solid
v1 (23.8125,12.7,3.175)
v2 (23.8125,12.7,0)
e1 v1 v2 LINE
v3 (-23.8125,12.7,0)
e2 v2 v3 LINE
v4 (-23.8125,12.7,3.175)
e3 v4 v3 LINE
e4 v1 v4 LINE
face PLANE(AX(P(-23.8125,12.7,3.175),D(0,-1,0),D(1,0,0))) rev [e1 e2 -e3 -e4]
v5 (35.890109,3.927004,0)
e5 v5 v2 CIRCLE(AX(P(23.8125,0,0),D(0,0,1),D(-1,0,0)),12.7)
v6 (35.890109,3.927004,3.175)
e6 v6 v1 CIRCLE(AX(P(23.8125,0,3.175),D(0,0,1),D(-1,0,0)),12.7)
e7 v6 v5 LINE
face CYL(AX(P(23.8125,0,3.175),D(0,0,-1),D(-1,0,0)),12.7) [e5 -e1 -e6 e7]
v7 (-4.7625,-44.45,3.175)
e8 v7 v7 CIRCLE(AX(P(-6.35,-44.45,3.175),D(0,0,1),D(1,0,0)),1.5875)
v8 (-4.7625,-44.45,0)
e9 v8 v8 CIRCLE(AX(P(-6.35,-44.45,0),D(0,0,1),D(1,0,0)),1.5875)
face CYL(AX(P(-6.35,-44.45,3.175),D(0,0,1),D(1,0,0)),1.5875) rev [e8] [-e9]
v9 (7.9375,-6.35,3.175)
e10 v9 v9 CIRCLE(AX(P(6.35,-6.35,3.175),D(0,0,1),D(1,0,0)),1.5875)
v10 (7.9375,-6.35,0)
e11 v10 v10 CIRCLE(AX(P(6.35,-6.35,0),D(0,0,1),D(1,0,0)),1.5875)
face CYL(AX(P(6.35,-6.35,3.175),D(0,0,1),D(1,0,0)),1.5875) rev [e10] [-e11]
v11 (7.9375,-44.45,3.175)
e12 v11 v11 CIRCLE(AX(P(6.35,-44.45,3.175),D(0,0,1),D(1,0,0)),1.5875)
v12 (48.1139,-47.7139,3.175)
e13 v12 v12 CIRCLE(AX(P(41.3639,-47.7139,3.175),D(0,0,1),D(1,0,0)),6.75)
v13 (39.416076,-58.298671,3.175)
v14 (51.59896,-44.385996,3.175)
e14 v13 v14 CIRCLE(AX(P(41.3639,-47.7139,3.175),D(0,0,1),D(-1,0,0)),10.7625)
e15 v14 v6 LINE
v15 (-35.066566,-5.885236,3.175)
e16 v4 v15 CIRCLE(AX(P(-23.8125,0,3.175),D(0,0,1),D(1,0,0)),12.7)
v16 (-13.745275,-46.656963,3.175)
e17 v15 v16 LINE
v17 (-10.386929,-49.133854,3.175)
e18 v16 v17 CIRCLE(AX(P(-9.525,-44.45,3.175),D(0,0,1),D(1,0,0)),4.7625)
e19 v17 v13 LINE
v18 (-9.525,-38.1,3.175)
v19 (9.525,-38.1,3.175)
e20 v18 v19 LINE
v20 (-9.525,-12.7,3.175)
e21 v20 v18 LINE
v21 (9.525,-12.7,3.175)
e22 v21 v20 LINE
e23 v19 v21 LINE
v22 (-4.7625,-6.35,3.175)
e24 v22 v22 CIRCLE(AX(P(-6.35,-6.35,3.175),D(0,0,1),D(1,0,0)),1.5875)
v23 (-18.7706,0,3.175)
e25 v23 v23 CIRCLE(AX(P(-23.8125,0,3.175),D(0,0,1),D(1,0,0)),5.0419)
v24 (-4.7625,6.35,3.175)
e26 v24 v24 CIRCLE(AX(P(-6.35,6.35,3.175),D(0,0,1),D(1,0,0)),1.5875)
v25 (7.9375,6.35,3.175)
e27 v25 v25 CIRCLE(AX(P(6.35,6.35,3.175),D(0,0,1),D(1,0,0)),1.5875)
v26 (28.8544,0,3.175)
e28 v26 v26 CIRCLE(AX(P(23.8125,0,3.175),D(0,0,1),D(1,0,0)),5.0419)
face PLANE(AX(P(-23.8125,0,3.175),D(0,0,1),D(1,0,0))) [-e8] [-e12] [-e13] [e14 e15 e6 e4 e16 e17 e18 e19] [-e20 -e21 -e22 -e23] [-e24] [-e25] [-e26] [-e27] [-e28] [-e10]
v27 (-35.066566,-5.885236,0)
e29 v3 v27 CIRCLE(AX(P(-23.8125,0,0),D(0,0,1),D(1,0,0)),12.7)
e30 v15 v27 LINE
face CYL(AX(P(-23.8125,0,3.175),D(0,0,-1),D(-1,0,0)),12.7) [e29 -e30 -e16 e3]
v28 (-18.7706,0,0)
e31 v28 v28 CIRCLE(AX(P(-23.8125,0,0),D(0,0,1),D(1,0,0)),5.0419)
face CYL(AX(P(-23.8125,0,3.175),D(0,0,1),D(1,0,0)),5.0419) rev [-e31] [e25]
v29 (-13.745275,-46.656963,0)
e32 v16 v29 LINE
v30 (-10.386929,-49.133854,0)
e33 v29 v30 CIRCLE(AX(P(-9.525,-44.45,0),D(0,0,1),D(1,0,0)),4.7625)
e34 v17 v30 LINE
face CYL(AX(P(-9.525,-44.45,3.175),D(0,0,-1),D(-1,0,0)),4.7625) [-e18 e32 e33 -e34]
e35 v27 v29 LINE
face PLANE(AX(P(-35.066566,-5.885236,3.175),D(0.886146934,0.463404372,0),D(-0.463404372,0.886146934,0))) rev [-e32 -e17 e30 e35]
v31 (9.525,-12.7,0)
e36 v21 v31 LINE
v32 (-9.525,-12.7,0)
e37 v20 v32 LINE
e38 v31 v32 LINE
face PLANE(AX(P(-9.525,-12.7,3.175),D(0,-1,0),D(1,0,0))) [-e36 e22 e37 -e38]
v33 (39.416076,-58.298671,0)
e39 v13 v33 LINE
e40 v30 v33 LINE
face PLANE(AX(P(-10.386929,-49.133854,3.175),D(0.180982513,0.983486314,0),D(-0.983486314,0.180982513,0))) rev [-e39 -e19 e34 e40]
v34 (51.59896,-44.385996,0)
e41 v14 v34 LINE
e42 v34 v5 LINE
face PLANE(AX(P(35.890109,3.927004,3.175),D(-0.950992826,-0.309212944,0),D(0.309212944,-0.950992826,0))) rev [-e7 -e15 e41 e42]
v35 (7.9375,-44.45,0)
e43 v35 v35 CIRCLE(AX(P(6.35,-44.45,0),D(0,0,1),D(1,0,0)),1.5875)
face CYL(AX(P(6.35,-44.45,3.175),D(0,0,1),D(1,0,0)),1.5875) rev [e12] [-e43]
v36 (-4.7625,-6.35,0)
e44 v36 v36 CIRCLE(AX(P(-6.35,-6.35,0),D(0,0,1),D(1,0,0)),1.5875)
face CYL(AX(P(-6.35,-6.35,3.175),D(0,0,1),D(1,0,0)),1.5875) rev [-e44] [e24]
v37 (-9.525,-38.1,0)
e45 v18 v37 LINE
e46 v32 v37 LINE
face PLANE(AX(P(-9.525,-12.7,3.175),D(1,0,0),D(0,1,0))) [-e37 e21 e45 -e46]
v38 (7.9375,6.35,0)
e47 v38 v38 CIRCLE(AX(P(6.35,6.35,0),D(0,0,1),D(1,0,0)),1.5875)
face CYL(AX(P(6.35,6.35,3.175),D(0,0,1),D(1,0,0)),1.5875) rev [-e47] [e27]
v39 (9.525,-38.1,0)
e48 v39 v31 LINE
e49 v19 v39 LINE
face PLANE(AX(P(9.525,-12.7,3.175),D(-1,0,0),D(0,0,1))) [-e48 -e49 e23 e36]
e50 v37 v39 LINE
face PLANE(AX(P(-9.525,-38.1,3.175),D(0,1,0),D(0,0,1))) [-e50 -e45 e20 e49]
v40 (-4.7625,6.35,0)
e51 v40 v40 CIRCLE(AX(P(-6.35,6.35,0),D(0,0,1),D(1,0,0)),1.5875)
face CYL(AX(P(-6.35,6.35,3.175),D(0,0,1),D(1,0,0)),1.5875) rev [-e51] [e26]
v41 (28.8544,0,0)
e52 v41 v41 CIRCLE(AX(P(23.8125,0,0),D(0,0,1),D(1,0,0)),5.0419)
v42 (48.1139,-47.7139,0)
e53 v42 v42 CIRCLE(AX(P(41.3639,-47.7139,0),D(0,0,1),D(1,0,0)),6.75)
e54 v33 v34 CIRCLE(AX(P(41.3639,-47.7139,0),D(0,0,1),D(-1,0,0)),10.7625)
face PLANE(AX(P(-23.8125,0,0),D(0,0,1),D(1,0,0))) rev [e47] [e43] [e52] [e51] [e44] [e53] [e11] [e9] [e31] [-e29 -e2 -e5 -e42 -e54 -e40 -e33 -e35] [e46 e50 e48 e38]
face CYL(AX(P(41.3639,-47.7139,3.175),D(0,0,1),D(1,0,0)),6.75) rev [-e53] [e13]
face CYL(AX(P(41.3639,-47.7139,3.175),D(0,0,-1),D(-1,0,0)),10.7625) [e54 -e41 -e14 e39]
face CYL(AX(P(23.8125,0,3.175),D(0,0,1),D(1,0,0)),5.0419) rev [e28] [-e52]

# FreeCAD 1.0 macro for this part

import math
import FreeCAD as App
import Part
import Sketcher
Q = App.Units.Quantity

doc = App.newDocument("Part")
params = doc.addObject("Spreadsheet::Sheet", "Params")
for row, (alias, value) in enumerate([
    ("sketch1_radius", "0.5 in"),
    ("sketch1_height", "1 in"),
    ("sketch1_radius2", "0.1875 in"),
    ("sketch1_width", "0.75 in"),
    ("sketch1_width2", "1.875 in"),
    ("pad1_length", "0.125 in"),
    ("sketch2_diameter", "0.397 in"),
    ("hole_diameter", "0.397 in"),
    ("hole2_diameter", "13.5 mm"),
    ("sketch4_diameter", "0.125 in"),
    ("hole3_diameter", "0.125 in"),
], start=1):
    params.set(f"A{row}", alias)
    params.set(f"B{row}", "=" + value)
    params.setAlias(f"B{row}", alias)

body = doc.addObject("PartDesign::Body", "Body")

# Sketch on XY plane
sketch1 = body.newObject("Sketcher::SketchObject", "Sketch")
sketch1.AttachmentSupport = (doc.getObject("XY_Plane"), [""])
sketch1.MapMode = "FlatFace"
sketch1.addGeometry([
    Part.LineSegment(App.Vector(23.8125, 12.7, 0), App.Vector(-23.8125, 12.7, 0)),  # 0
    Part.ArcOfCircle(Part.Circle(App.Vector(-23.8125, 0, 0), App.Vector(0, 0, 1), 12.7), math.radians(90), math.radians(207.607005)),  # 1
    Part.LineSegment(App.Vector(-35.066566, -5.885236, 0), App.Vector(-13.745275, -46.656963, 0)),  # 2
    Part.ArcOfCircle(Part.Circle(App.Vector(-9.525, -44.45, 0), App.Vector(0, 0, 1), 4.7625), math.radians(-152.392996), math.radians(-100.426994)),  # 3
    Part.LineSegment(App.Vector(-10.386929, -49.133854, 0), App.Vector(39.416076, -58.298671, 0)),  # 4
    Part.ArcOfCircle(Part.Circle(App.Vector(41.3639, -47.7139, 0), App.Vector(0, 0, 1), 10.7625), math.radians(-100.426994), math.radians(18.011805)),  # 5
    Part.LineSegment(App.Vector(51.59896, -44.385996, 0), App.Vector(35.890109, 3.927004, 0)),  # 6
    Part.ArcOfCircle(Part.Circle(App.Vector(23.8125, 0, 0), App.Vector(0, 0, 1), 12.7), math.radians(18.011805), math.radians(90)),  # 7
    Part.LineSegment(App.Vector(-9.525, -38.1, 0), App.Vector(-9.525, -12.7, 0)),  # 8
    Part.LineSegment(App.Vector(-9.525, -12.7, 0), App.Vector(9.525, -12.7, 0)),  # 9
    Part.LineSegment(App.Vector(9.525, -12.7, 0), App.Vector(9.525, -38.1, 0)),  # 10
    Part.LineSegment(App.Vector(9.525, -38.1, 0), App.Vector(-9.525, -38.1, 0)),  # 11
], False)
sketch1.addConstraint([
    Sketcher.Constraint("Tangent", 0, 2, 1, 1),
    Sketcher.Constraint("Tangent", 1, 2, 2, 1),
    Sketcher.Constraint("Tangent", 2, 2, 3, 1),
    Sketcher.Constraint("Tangent", 3, 2, 4, 1),
    Sketcher.Constraint("Tangent", 4, 2, 5, 1),
    Sketcher.Constraint("Tangent", 5, 2, 6, 1),
    Sketcher.Constraint("Tangent", 6, 2, 7, 1),
    Sketcher.Constraint("Tangent", 7, 2, 0, 1),
    Sketcher.Constraint("Coincident", 8, 2, 9, 1),
    Sketcher.Constraint("Coincident", 9, 2, 10, 1),
    Sketcher.Constraint("Coincident", 10, 2, 11, 1),
    Sketcher.Constraint("Coincident", 11, 2, 8, 1),
    Sketcher.Constraint("Horizontal", 0),
    Sketcher.Constraint("Vertical", 8),
    Sketcher.Constraint("Horizontal", 9),
    Sketcher.Constraint("Vertical", 10),
    Sketcher.Constraint("Horizontal", 11),
    Sketcher.Constraint("Equal", 1, 7),
    Sketcher.Constraint("Symmetric", 1, 3, 7, 3, -1, 1),
    Sketcher.Constraint("Vertical", 3, 3, 8, 2),
    Sketcher.Constraint("Radius", 1, Q("0.5 in")),
    Sketcher.Constraint("DistanceY", 8, 1, 8, 2, Q("1 in")),
    Sketcher.Constraint("Radius", 3, Q("0.1875 in")),
    Sketcher.Constraint("DistanceY", 8, 2, 0, 2, Q("1 in")),
    Sketcher.Constraint("DistanceX", 9, 1, 9, 2, Q("0.75 in")),
    Sketcher.Constraint("DistanceX", 0, 2, 0, 1, Q("1.875 in")),
    Sketcher.Constraint("DistanceY", 3, 3, -1, 1, Q("1.75 in")),
    Sketcher.Constraint("Radius", 5, Q("10.7625 mm")),
    Sketcher.Constraint("DistanceX", 3, 3, -1, 1, Q("0.375 in")),
    Sketcher.Constraint("DistanceX", 1, 3, 5, 3, Q("2.566 in")),
    Sketcher.Constraint("DistanceY", 5, 3, -1, 1, Q("1.8785 in")),
])
sketch1.setExpression("Constraints[20]", "Params.sketch1_radius")
sketch1.setExpression("Constraints[21]", "Params.sketch1_height")
sketch1.setExpression("Constraints[22]", "Params.sketch1_radius2")
sketch1.setExpression("Constraints[24]", "Params.sketch1_width")
sketch1.setExpression("Constraints[25]", "Params.sketch1_width2")
pad1 = body.newObject("PartDesign::Pad", "Pad")
pad1.Profile = sketch1
pad1.setExpression("Length", "Params.pad1_length")

# Sketch on XY plane
sketch2 = body.newObject("Sketcher::SketchObject", "Sketch001")
sketch2.AttachmentSupport = (doc.getObject("XY_Plane"), [""])
sketch2.MapMode = "FlatFace"
sketch2.AttachmentOffset = App.Placement(App.Vector(0, 0, 0.125 * 25.4), App.Rotation())
sketch2.addGeometry([
    Part.Circle(App.Vector(-23.8125, 0, 0), App.Vector(0, 0, 1), 5.0419),
    Part.Circle(App.Vector(23.8125, 0, 0), App.Vector(0, 0, 1), 5.0419),
], False)
sketch2.addConstraint([
    Sketcher.Constraint("Equal", 0, 1),
    Sketcher.Constraint("Symmetric", 0, 3, 1, 3, -1, 1),
    Sketcher.Constraint("PointOnObject", 0, 3, -1),
    Sketcher.Constraint("Diameter", 0, Q("0.397 in")),
    Sketcher.Constraint("DistanceX", 0, 3, -1, 1, Q("0.9375 in")),
])
sketch2.setExpression("Constraints[3]", "Params.sketch2_diameter")
doc.recompute()
hole = body.newObject("PartDesign::Hole", "Hole")
hole.Profile = sketch2
hole.ThreadType = "None"
hole.setExpression("Diameter", "Params.hole_diameter")
hole.DepthType = "ThroughAll"

# Sketch on XY plane
sketch3 = body.newObject("Sketcher::SketchObject", "Sketch002")
sketch3.AttachmentSupport = (doc.getObject("XY_Plane"), [""])
sketch3.MapMode = "FlatFace"
sketch3.AttachmentOffset = App.Placement(App.Vector(0, 0, 0.125 * 25.4), App.Rotation())
sketch3.addGeometry(Part.Circle(App.Vector(41.3639, -47.7139, 0), App.Vector(0, 0, 1), 6.75), False)
sketch3.addConstraint([
    Sketcher.Constraint("Diameter", 0, Q("13.5 mm")),
    Sketcher.Constraint("DistanceX", -1, 1, 0, 3, Q("1.6285 in")),
    Sketcher.Constraint("DistanceY", 0, 3, -1, 1, Q("1.8785 in")),
])
doc.recompute()
hole2 = body.newObject("PartDesign::Hole", "Hole001")
hole2.Profile = sketch3
hole2.ThreadType = "None"
hole2.setExpression("Diameter", "Params.hole2_diameter")
hole2.DepthType = "ThroughAll"

# Sketch on XY plane
sketch4 = body.newObject("Sketcher::SketchObject", "Sketch003")
sketch4.AttachmentSupport = (doc.getObject("XY_Plane"), [""])
sketch4.MapMode = "FlatFace"
sketch4.AttachmentOffset = App.Placement(App.Vector(0, 0, 0.125 * 25.4), App.Rotation())
sketch4.addGeometry([
    Part.Circle(App.Vector(6.35, -6.35, 0), App.Vector(0, 0, 1), 1.5875),  # 0
    Part.Circle(App.Vector(-6.35, 6.35, 0), App.Vector(0, 0, 1), 1.5875),  # 1
    Part.Circle(App.Vector(-6.35, -6.35, 0), App.Vector(0, 0, 1), 1.5875),  # 2
    Part.Circle(App.Vector(6.35, 6.35, 0), App.Vector(0, 0, 1), 1.5875),  # 3
    Part.Circle(App.Vector(-6.35, -44.45, 0), App.Vector(0, 0, 1), 1.5875),  # 4
    Part.Circle(App.Vector(6.35, -44.45, 0), App.Vector(0, 0, 1), 1.5875),  # 5
], False)
sketch4.addConstraint([
    Sketcher.Constraint("Equal", 0, 1),
    Sketcher.Constraint("Equal", 1, 2),
    Sketcher.Constraint("Equal", 2, 3),
    Sketcher.Constraint("Equal", 3, 4),
    Sketcher.Constraint("Equal", 4, 5),
    Sketcher.Constraint("Symmetric", 0, 3, 1, 3, -1, 1),
    Sketcher.Constraint("Symmetric", 2, 3, 3, 3, -1, 1),
    Sketcher.Constraint("Symmetric", 0, 3, 2, 3, -2),
    Sketcher.Constraint("Symmetric", 4, 3, 5, 3, -2),
    Sketcher.Constraint("Vertical", 2, 3, 4, 3),
    Sketcher.Constraint("Diameter", 0, Q("0.125 in")),
    Sketcher.Constraint("DistanceY", 4, 3, 1, 3, Q("2 in")),
    Sketcher.Constraint("DistanceX", 1, 3, 0, 3, Q("0.5 in")),
    Sketcher.Constraint("DistanceY", 0, 3, 1, 3, Q("0.5 in")),
])
sketch4.setExpression("Constraints[10]", "Params.sketch4_diameter")
doc.recompute()
hole3 = body.newObject("PartDesign::Hole", "Hole002")
hole3.Profile = sketch4
hole3.ThreadType = "None"
hole3.setExpression("Diameter", "Params.hole3_diameter")
hole3.DepthType = "ThroughAll"

doc.recompute()
